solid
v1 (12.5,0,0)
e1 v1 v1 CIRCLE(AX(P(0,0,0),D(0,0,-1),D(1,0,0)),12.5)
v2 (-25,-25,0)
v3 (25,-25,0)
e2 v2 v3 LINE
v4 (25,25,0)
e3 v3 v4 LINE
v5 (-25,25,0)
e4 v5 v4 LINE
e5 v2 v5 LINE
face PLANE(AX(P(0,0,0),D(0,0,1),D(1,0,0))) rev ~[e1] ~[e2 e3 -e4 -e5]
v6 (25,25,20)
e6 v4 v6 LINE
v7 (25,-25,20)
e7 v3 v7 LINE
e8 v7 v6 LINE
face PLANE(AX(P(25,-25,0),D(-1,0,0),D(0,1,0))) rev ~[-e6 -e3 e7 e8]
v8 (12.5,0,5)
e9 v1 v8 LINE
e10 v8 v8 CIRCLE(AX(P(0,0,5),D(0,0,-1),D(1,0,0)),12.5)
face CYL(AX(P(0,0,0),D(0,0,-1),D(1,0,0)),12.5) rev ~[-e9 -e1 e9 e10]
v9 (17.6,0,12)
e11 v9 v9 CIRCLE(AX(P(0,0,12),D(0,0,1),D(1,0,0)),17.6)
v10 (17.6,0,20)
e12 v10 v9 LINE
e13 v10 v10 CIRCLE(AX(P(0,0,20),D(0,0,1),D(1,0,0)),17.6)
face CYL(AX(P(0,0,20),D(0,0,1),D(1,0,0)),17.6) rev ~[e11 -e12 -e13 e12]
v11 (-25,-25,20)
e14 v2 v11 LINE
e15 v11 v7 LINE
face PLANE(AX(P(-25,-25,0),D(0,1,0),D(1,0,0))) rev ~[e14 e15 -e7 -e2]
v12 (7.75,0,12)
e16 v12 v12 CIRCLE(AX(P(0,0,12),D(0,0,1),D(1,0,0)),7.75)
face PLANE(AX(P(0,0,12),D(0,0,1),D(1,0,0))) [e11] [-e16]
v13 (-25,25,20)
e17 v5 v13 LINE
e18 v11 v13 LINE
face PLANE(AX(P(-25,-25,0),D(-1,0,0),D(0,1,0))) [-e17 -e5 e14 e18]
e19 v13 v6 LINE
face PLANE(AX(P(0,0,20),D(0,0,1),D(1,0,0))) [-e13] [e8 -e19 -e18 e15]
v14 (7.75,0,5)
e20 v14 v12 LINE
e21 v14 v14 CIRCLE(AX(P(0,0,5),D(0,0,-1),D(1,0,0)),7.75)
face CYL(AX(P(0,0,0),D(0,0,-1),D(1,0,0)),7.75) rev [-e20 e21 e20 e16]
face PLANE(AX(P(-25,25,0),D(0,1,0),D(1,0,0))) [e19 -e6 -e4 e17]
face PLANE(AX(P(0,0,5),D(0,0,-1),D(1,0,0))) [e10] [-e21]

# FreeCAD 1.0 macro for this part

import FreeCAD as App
import Part
import Sketcher

V = App.Vector


def add_polygon(sketch, points):
    """Adds a closed chain of lines whose ends are joined by coincident constraints."""
    first, n = sketch.GeometryCount, len(points)
    for a, b in zip(points, points[1:] + points[:1]):
        sketch.addGeometry(Part.LineSegment(App.Vector(*a, 0), App.Vector(*b, 0)), False)
    for i in range(n):
        sketch.addConstraint(Sketcher.Constraint("Coincident", first + i, 2, first + (i + 1) % n, 1))

doc = App.newDocument("Part")
body = doc.addObject("PartDesign::Body", "Body")

# Sketch on XY plane
sketch1 = body.newObject("Sketcher::SketchObject", "Sketch")
sketch1.AttachmentSupport = (doc.getObject("XY_Plane"), [""])
sketch1.MapMode = "FlatFace"
add_polygon(sketch1, [(-25, 25), (-25, -25), (25, -25), (25, 25)])  # lines 0-3
sketch1.addGeometry(Part.Circle(V(0, 0, 0), V(0, 0, 1), 8), False)  # 4
sketch1.addConstraint(Sketcher.Constraint("Vertical", 0))
sketch1.addConstraint(Sketcher.Constraint("Horizontal", 1))
sketch1.addConstraint(Sketcher.Constraint("Vertical", 2))
sketch1.addConstraint(Sketcher.Constraint("Horizontal", 3))
sketch1.addConstraint(Sketcher.Constraint("Coincident", 4, 3, -1, 1))
sketch1.addConstraint(Sketcher.Constraint("Symmetric", 0, 2, 2, 2, -1, 1))
sketch1.addConstraint(Sketcher.Constraint("Equal", 3, 0))
sketch1.addConstraint(Sketcher.Constraint("Diameter", 4, 15.5))
sketch1.addConstraint(Sketcher.Constraint("DistanceX", 1, 1, 1, 2, 50.0))
pad1 = body.newObject("PartDesign::Pad", "Pad")
pad1.Profile = sketch1
pad1.Length = 20

# Sketch on XY plane
sketch2 = body.newObject("Sketcher::SketchObject", "Sketch001")
sketch2.AttachmentSupport = (doc.getObject("XY_Plane"), [""])
sketch2.MapMode = "FlatFace"
sketch2.AttachmentOffset = App.Placement(V(0, 0, 20), App.Rotation())
sketch2.addGeometry(Part.Circle(V(0, 0, 0), V(0, 0, 1), 18), False)
sketch2.addGeometry(Part.Circle(V(0, 0, 0), V(0, 0, 1), 8), False)
sketch2.addConstraint(Sketcher.Constraint("Coincident", 0, 3, -1, 1))
sketch2.addConstraint(Sketcher.Constraint("Coincident", 1, 3, -1, 1))
sketch2.addConstraint(Sketcher.Constraint("Diameter", 0, 35.2))
sketch2.addConstraint(Sketcher.Constraint("Diameter", 1, 15.5))
pocket1 = body.newObject("PartDesign::Pocket", "Pocket")
pocket1.Profile = sketch2
pocket1.Length = 8

# Sketch on XY plane
sketch3 = body.newObject("Sketcher::SketchObject", "Sketch002")
sketch3.AttachmentSupport = (doc.getObject("XY_Plane"), [""])
sketch3.MapMode = "FlatFace"
sketch3.addGeometry(Part.Circle(V(0, 0, 0), V(0, 0, 1), 12), False)
sketch3.addGeometry(Part.Circle(V(0, 0, 0), V(0, 0, 1), 8), False)
sketch3.addConstraint(Sketcher.Constraint("Coincident", 0, 3, -1, 1))
sketch3.addConstraint(Sketcher.Constraint("Coincident", 1, 3, -1, 1))
sketch3.addConstraint(Sketcher.Constraint("Diameter", 0, 25.0))
sketch3.addConstraint(Sketcher.Constraint("Diameter", 1, 15.5))
pocket2 = body.newObject("PartDesign::Pocket", "Pocket001")
pocket2.Profile = sketch3
pocket2.Length = 5
pocket2.Reversed = True

doc.recompute()
